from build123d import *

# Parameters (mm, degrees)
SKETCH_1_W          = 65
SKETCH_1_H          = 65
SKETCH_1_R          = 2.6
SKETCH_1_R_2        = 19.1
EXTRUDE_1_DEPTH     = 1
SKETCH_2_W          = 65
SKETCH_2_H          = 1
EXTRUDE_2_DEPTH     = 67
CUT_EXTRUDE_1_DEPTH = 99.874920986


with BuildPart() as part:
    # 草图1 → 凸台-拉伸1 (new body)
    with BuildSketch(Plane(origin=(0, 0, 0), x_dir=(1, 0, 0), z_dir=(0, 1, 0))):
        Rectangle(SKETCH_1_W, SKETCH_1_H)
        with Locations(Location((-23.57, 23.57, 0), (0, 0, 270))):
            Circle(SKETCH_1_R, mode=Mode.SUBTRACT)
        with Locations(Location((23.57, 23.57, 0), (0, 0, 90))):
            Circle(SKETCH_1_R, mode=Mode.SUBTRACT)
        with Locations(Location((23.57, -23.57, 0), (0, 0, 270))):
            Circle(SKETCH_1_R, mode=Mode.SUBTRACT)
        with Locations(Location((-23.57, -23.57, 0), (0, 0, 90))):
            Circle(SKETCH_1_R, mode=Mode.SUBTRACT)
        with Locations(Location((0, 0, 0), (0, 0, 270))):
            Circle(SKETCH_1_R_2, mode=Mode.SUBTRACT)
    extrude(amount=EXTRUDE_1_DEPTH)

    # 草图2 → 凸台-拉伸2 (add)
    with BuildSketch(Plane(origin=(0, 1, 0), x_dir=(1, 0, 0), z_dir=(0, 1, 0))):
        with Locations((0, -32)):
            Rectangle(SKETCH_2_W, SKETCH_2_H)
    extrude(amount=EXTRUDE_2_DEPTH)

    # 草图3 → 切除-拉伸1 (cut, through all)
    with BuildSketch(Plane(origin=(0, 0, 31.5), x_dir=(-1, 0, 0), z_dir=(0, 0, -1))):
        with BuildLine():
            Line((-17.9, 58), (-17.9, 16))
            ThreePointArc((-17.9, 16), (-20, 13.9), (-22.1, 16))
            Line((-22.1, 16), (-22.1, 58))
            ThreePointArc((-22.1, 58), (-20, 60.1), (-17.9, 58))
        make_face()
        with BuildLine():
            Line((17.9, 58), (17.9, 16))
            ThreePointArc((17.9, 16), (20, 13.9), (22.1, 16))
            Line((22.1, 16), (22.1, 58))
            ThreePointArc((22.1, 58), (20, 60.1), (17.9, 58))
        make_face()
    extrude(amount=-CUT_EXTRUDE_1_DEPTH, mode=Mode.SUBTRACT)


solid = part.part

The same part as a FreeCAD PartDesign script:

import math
import FreeCAD as App
import Part
import Sketcher

V = App.Vector
Q = App.Units.Quantity


def add_polygon(sketch, points):
    """Adds a closed chain of lines whose ends are joined by coincident constraints."""
    first, n = sketch.GeometryCount, len(points)
    for a, b in zip(points, points[1:] + points[:1]):
        sketch.addGeometry(Part.LineSegment(App.Vector(*a, 0), App.Vector(*b, 0)), False)
    for i in range(n):
        sketch.addConstraint(Sketcher.Constraint("Coincident", first + i, 2, first + (i + 1) % n, 1))

doc = App.newDocument("Part")
body = doc.addObject("PartDesign::Body", "Body")

# Sketch on XZ plane
sketch1 = body.newObject("Sketcher::SketchObject", "Sketch")
sketch1.AttachmentSupport = (doc.getObject("XZ_Plane"), [""])
sketch1.MapMode = "FlatFace"
add_polygon(sketch1, [(-32.5, -32.5), (-32.5, 32.5), (32.5, 32.5), (32.5, -32.5)])  # lines 0-3
sketch1.addGeometry(Part.Circle(V(-23.6, 23.6, 0), V(0, 0, 1), 2.6), False)  # 4
sketch1.addGeometry(Part.Circle(V(0, 0, 0), V(0, 0, 1), 19.1), False)  # 5
sketch1.addGeometry(Part.Circle(V(23.6, 23.6, 0), V(0, 0, 1), 2.6), False)  # 6
sketch1.addGeometry(Part.Circle(V(-23.6, -23.6, 0), V(0, 0, 1), 2.6), False)  # 7
sketch1.addGeometry(Part.Circle(V(23.6, -23.6, 0), V(0, 0, 1), 2.6), False)  # 8
sketch1.addConstraint([
    Sketcher.Constraint("Vertical", 0),
    Sketcher.Constraint("Horizontal", 1),
    Sketcher.Constraint("Vertical", 2),
    Sketcher.Constraint("Horizontal", 3),
    Sketcher.Constraint("Coincident", 5, 3, -1, 1),
    Sketcher.Constraint("Equal", 4, 6),
    Sketcher.Constraint("Equal", 6, 7),
    Sketcher.Constraint("Equal", 7, 8),
    Sketcher.Constraint("Symmetric", 6, 3, 7, 3, -1, 1),
    Sketcher.Constraint("Symmetric", 4, 3, 8, 3, -1, 1),
    Sketcher.Constraint("Symmetric", 0, 2, 2, 2, -1, 1),
    Sketcher.Constraint("Symmetric", 4, 3, 6, 3, -2),
    Sketcher.Constraint("Equal", 3, 0),
    Sketcher.Constraint("Diameter", 4, Q("5.2 mm")),
    Sketcher.Constraint("Diameter", 5, Q("38.2 mm")),
    Sketcher.Constraint("DistanceX", 1, 1, 1, 2, Q("65 mm")),
    Sketcher.Constraint("DistanceX", 4, 3, -1, 1, Q("23.57 mm")),
    Sketcher.Constraint("DistanceY", -1, 1, 4, 3, Q("23.57 mm")),
])
pad1 = body.newObject("PartDesign::Pad", "Pad")
pad1.Profile = sketch1
pad1.Length = 1
pad1.Reversed = True

# Sketch on XZ plane
sketch2 = body.newObject("Sketcher::SketchObject", "Sketch001")
sketch2.AttachmentSupport = (doc.getObject("XZ_Plane"), [""])
sketch2.MapMode = "FlatFace"
sketch2.AttachmentOffset = App.Placement(V(0, 0, -1), App.Rotation())
add_polygon(sketch2, [(-32.5, 31.5), (-32.5, 32.5), (32.5, 32.5), (32.5, 31.5)])  # lines 0-3
sketch2.addConstraint([
    Sketcher.Constraint("Vertical", 0),
    Sketcher.Constraint("Horizontal", 1),
    Sketcher.Constraint("Vertical", 2),
    Sketcher.Constraint("Horizontal", 3),
    Sketcher.Constraint("DistanceX", 1, 1, 1, 2, Q("65 mm")),
    Sketcher.Constraint("DistanceY", 0, 1, 0, 2, Q("1 mm")),
    Sketcher.Constraint("DistanceX", 0, 2, -1, 1, Q("32.5 mm")),
    Sketcher.Constraint("DistanceY", -1, 1, 0, 2, Q("32.5 mm")),
])
pad2 = body.newObject("PartDesign::Pad", "Pad001")
pad2.Profile = sketch2
pad2.Length = 67
pad2.Reversed = True

# Sketch on XY plane
sketch3 = body.newObject("Sketcher::SketchObject", "Sketch002")
sketch3.AttachmentSupport = (doc.getObject("XY_Plane"), [""])
sketch3.MapMode = "FlatFace"
sketch3.AttachmentOffset = App.Placement(V(0, 0, 31.5), App.Rotation())
sketch3.addGeometry([
    Part.LineSegment(V(17.9, 16, 0), V(17.9, 58, 0)),  # 0
    Part.ArcOfCircle(Part.Circle(V(20, 58, 0), V(0, 0, 1), 2.1), math.radians(0), math.radians(180)),  # 1
    Part.LineSegment(V(22.1, 58, 0), V(22.1, 16, 0)),  # 2
    Part.ArcOfCircle(Part.Circle(V(20, 16, 0), V(0, 0, 1), 2.1), math.radians(180), math.radians(360)),  # 3
    Part.LineSegment(V(-17.9, 58, 0), V(-17.9, 16, 0)),  # 4
    Part.ArcOfCircle(Part.Circle(V(-20, 16, 0), V(0, 0, 1), 2.1), math.radians(180), math.radians(360)),  # 5
    Part.LineSegment(V(-22.1, 16, 0), V(-22.1, 58, 0)),  # 6
    Part.ArcOfCircle(Part.Circle(V(-20, 58, 0), V(0, 0, 1), 2.1), math.radians(0), math.radians(180)),  # 7
], False)
sketch3.addConstraint([
    Sketcher.Constraint("Tangent", 0, 2, 1, 2),
    Sketcher.Constraint("Tangent", 1, 1, 2, 1),
    Sketcher.Constraint("Tangent", 2, 2, 3, 2),
    Sketcher.Constraint("Tangent", 3, 1, 0, 1),
    Sketcher.Constraint("Tangent", 4, 2, 5, 2),
    Sketcher.Constraint("Tangent", 5, 1, 6, 1),
    Sketcher.Constraint("Tangent", 6, 2, 7, 2),
    Sketcher.Constraint("Tangent", 7, 1, 4, 1),
    Sketcher.Constraint("Vertical", 0),
    Sketcher.Constraint("Vertical", 2),
    Sketcher.Constraint("Vertical", 4),
    Sketcher.Constraint("Vertical", 6),
    Sketcher.Constraint("Equal", 3, 5),
    Sketcher.Constraint("Symmetric", 3, 3, 5, 3, -2),
    Sketcher.Constraint("Horizontal", 1, 3, 7, 3),
    Sketcher.Constraint("Radius", 1, Q("2.1 mm")),
    Sketcher.Constraint("DistanceY", 0, 1, 0, 2, Q("42 mm")),
    Sketcher.Constraint("DistanceX", -1, 1, 1, 3, Q("20 mm")),
    Sketcher.Constraint("DistanceY", -1, 1, 1, 3, Q("58 mm")),
])
pocket1 = body.newObject("PartDesign::Pocket", "Pocket")
pocket1.Profile = sketch3
pocket1.Type = "ThroughAll"
pocket1.Reversed = True

doc.recompute()
